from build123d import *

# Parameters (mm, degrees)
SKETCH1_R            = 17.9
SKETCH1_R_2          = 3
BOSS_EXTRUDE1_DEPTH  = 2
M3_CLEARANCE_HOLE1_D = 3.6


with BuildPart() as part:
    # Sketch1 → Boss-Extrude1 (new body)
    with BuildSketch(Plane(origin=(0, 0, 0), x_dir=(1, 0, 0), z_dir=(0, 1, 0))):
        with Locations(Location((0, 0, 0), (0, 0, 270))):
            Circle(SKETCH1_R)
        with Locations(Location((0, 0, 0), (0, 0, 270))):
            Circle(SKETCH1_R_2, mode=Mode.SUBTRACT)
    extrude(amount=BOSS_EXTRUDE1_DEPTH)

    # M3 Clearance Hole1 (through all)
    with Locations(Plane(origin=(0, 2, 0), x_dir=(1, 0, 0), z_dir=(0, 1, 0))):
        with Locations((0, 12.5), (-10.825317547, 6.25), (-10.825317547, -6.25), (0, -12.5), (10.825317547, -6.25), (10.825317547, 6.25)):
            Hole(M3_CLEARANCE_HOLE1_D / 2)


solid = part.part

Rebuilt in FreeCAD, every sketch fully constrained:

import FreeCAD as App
import Part
import Sketcher
from FreeCAD import Vector

doc = App.newDocument("Part")
params = doc.addObject("Spreadsheet::Sheet", "Params")
for row, (alias, value) in enumerate([
    ("sketch1_diameter", "6 mm"),
    ("sketch1_diameter2", "35.8 mm"),
    ("pad1_length", "2 mm"),
    ("sketch2_diameter", "3.6 mm"),
    ("hole_diameter", "3.6 mm"),
], start=1):
    params.set(f"A{row}", alias)
    params.set(f"B{row}", "=" + value)
    params.setAlias(f"B{row}", alias)

body = doc.addObject("PartDesign::Body", "Body")

# Sketch on XZ plane
sketch1 = doc.addObject("Sketcher::SketchObject", "Sketch")
body.addObject(sketch1)
sketch1.AttachmentSupport = (doc.XZ_Plane, [""])
sketch1.MapMode = "FlatFace"
sketch1.addGeometry([
    Part.Circle(Vector(0, 0, 0), Vector(0, 0, 1), 17.9),
    Part.Circle(Vector(0, 0, 0), Vector(0, 0, 1), 3),
], False)
sketch1.addConstraint([
    Sketcher.Constraint("Coincident", 0, 3, -1, 1),
    Sketcher.Constraint("Coincident", 1, 3, -1, 1),
    Sketcher.Constraint("Diameter", 1, 6.0),
    Sketcher.Constraint("Diameter", 0, 35.8),
])
sketch1.setExpression("Constraints[2]", "Params.sketch1_diameter")
sketch1.setExpression("Constraints[3]", "Params.sketch1_diameter2")
pad1 = doc.addObject("PartDesign::Pad", "Pad")
body.addObject(pad1)
pad1.Profile = sketch1
pad1.setExpression("Length", "Params.pad1_length")
pad1.Reversed = True

# Sketch on XZ plane
sketch2 = doc.addObject("Sketcher::SketchObject", "Sketch001")
body.addObject(sketch2)
sketch2.AttachmentSupport = (doc.XZ_Plane, [""])
sketch2.MapMode = "FlatFace"
sketch2.AttachmentOffset = App.Placement(Vector(0, 0, -2), App.Rotation())
sketch2.addGeometry([
    Part.Circle(Vector(0, -12.5, 0), Vector(0, 0, 1), 1.8),  # 0
    Part.Circle(Vector(-10.8, -6.2, 0), Vector(0, 0, 1), 1.8),  # 1
    Part.Circle(Vector(-10.8, 6.2, 0), Vector(0, 0, 1), 1.8),  # 2
    Part.Circle(Vector(0, 12.5, 0), Vector(0, 0, 1), 1.8),  # 3
    Part.Circle(Vector(10.8, 6.2, 0), Vector(0, 0, 1), 1.8),  # 4
    Part.Circle(Vector(10.8, -6.2, 0), Vector(0, 0, 1), 1.8),  # 5
], False)
sketch2.addConstraint([
    Sketcher.Constraint("Equal", 0, 1),
    Sketcher.Constraint("Equal", 1, 2),
    Sketcher.Constraint("Equal", 2, 3),
    Sketcher.Constraint("Equal", 3, 4),
    Sketcher.Constraint("Equal", 4, 5),
    Sketcher.Constraint("Symmetric", 0, 3, 3, 3, -1, 1),
    Sketcher.Constraint("Symmetric", 1, 3, 4, 3, -1, 1),
    Sketcher.Constraint("Symmetric", 2, 3, 5, 3, -1, 1),
    Sketcher.Constraint("Symmetric", 2, 3, 4, 3, -2),
    Sketcher.Constraint("PointOnObject", 0, 3, -2),
    Sketcher.Constraint("Diameter", 0, 3.6),
    Sketcher.Constraint("DistanceY", 0, 3, 3, 3, 25.0),
    Sketcher.Constraint("DistanceY", 1, 3, 2, 3, 12.5),
    Sketcher.Constraint("DistanceX", 1, 3, -1, 1, 10.825318),
])
sketch2.setExpression("Constraints[10]", "Params.sketch2_diameter")
doc.recompute()
hole = doc.addObject("PartDesign::Hole", "Hole")
body.addObject(hole)
hole.Profile = sketch2
hole.ThreadType = "None"
hole.setExpression("Diameter", "Params.hole_diameter")
hole.DepthType = "ThroughAll"
hole.Reversed = True

doc.recompute()
